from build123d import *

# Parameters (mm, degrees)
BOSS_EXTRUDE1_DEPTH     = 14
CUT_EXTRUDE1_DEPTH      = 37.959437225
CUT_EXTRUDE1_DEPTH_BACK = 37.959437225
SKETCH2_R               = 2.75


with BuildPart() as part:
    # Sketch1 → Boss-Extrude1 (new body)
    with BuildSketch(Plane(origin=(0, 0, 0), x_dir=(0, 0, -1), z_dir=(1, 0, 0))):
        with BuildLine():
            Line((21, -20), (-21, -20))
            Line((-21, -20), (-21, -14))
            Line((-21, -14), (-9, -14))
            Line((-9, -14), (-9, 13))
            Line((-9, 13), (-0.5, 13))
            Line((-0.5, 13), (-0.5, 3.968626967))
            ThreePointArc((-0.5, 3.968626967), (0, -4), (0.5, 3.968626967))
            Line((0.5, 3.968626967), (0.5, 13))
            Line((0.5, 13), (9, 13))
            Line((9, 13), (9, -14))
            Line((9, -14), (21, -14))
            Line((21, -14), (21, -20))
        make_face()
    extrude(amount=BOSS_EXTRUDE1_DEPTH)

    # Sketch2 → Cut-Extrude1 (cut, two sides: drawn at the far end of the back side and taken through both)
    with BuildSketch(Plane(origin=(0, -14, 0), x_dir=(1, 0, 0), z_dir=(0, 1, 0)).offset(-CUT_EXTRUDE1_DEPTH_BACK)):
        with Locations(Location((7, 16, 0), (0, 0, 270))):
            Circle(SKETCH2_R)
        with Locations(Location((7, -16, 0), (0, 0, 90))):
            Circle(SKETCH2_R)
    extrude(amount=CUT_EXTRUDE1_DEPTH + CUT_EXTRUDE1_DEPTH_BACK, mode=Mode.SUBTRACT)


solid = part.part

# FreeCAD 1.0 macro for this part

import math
import FreeCAD as App
import Part
import Sketcher

V = App.Vector
Q = App.Units.Quantity

doc = App.newDocument("Part")
params = doc.addObject("Spreadsheet::Sheet", "Params")
for row, (alias, value) in enumerate([
    ("sketch1_radius", "4 mm"),
    ("sketch1_width", "6 mm"),
    ("sketch1_width2", "27 mm"),
    ("sketch1_height", "42 mm"),
    ("sketch1_height2", "12 mm"),
    ("pad1_length", "14 mm"),
    ("sketch2_diameter", "5.5 mm"),
], start=1):
    params.set(f"A{row}", alias)
    params.set(f"B{row}", "=" + value)
    params.setAlias(f"B{row}", alias)

body = doc.addObject("PartDesign::Body", "Body")

# Sketch on YZ plane
sketch1 = body.newObject("Sketcher::SketchObject", "Sketch")
sketch1.AttachmentSupport = (doc.getObject("YZ_Plane"), [""])
sketch1.MapMode = "FlatFace"
sketch1.addGeometry([
    Part.LineSegment(V(-20, 21, 0), V(-20, -21, 0)),  # 0
    Part.LineSegment(V(-20, -21, 0), V(-14, -21, 0)),  # 1
    Part.LineSegment(V(-14, -21, 0), V(-14, -9, 0)),  # 2
    Part.LineSegment(V(-14, -9, 0), V(13, -9, 0)),  # 3
    Part.LineSegment(V(13, -9, 0), V(13, -0.5, 0)),  # 4
    Part.LineSegment(V(13, -0.5, 0), V(4, -0.5, 0)),  # 5
    Part.ArcOfCircle(Part.Circle(V(0, 0, 0), V(0, 0, 1), 4), math.radians(7), math.radians(353)),  # 6
    Part.LineSegment(V(4, 0.5, 0), V(13, 0.5, 0)),  # 7
    Part.LineSegment(V(13, 0.5, 0), V(13, 9, 0)),  # 8
    Part.LineSegment(V(13, 9, 0), V(-14, 9, 0)),  # 9
    Part.LineSegment(V(-14, 9, 0), V(-14, 21, 0)),  # 10
    Part.LineSegment(V(-14, 21, 0), V(-20, 21, 0)),  # 11
], False)
sketch1.addConstraint([
    Sketcher.Constraint("Coincident", 0, 2, 1, 1),
    Sketcher.Constraint("Coincident", 1, 2, 2, 1),
    Sketcher.Constraint("Coincident", 2, 2, 3, 1),
    Sketcher.Constraint("Coincident", 3, 2, 4, 1),
    Sketcher.Constraint("Coincident", 4, 2, 5, 1),
    Sketcher.Constraint("Coincident", 5, 2, 6, 2),
    Sketcher.Constraint("Coincident", 6, 1, 7, 1),
    Sketcher.Constraint("Coincident", 7, 2, 8, 1),
    Sketcher.Constraint("Coincident", 8, 2, 9, 1),
    Sketcher.Constraint("Coincident", 9, 2, 10, 1),
    Sketcher.Constraint("Coincident", 10, 2, 11, 1),
    Sketcher.Constraint("Coincident", 11, 2, 0, 1),
    Sketcher.Constraint("Vertical", 0),
    Sketcher.Constraint("Horizontal", 1),
    Sketcher.Constraint("Vertical", 2),
    Sketcher.Constraint("Horizontal", 3),
    Sketcher.Constraint("Vertical", 4),
    Sketcher.Constraint("Horizontal", 5),
    Sketcher.Constraint("Horizontal", 7),
    Sketcher.Constraint("Vertical", 8),
    Sketcher.Constraint("Horizontal", 9),
    Sketcher.Constraint("Vertical", 10),
    Sketcher.Constraint("Horizontal", 11),
    Sketcher.Constraint("Coincident", 6, 3, -1, 1),
    Sketcher.Constraint("Symmetric", 4, 2, 7, 2, -1),
    Sketcher.Constraint("Symmetric", 2, 2, 9, 2, -1),
    Sketcher.Constraint("Equal", 2, 10),
    Sketcher.Constraint("Radius", 6, Q("4 mm")),
    Sketcher.Constraint("DistanceX", 1, 1, 1, 2, Q("6 mm")),
    Sketcher.Constraint("DistanceX", 3, 1, 3, 2, Q("27 mm")),
    Sketcher.Constraint("DistanceY", 0, 2, 0, 1, Q("42 mm")),
    Sketcher.Constraint("DistanceY", 2, 1, 2, 2, Q("12 mm")),
    Sketcher.Constraint("DistanceY", 4, 1, 4, 2, Q("8.5 mm")),
    Sketcher.Constraint("DistanceX", 0, 2, -1, 1, Q("20 mm")),
])
sketch1.setExpression("Constraints[27]", "Params.sketch1_radius")
sketch1.setExpression("Constraints[28]", "Params.sketch1_width")
sketch1.setExpression("Constraints[29]", "Params.sketch1_width2")
sketch1.setExpression("Constraints[30]", "Params.sketch1_height")
sketch1.setExpression("Constraints[31]", "Params.sketch1_height2")
pad1 = body.newObject("PartDesign::Pad", "Pad")
pad1.Profile = sketch1
pad1.setExpression("Length", "Params.pad1_length")

# Sketch on XZ plane
sketch2 = body.newObject("Sketcher::SketchObject", "Sketch001")
sketch2.AttachmentSupport = (doc.getObject("XZ_Plane"), [""])
sketch2.MapMode = "FlatFace"
sketch2.AttachmentOffset = App.Placement(V(0, 0, 14), App.Rotation())
sketch2.addGeometry([
    Part.Circle(V(7, -16, 0), V(0, 0, 1), 2.8),
    Part.Circle(V(7, 16, 0), V(0, 0, 1), 2.8),
], False)
sketch2.addConstraint([
    Sketcher.Constraint("Equal", 0, 1),
    Sketcher.Constraint("Symmetric", 0, 3, 1, 3, -1),
    Sketcher.Constraint("Diameter", 0, Q("5.5 mm")),
    Sketcher.Constraint("DistanceX", -1, 1, 0, 3, Q("7 mm")),
    Sketcher.Constraint("DistanceY", 0, 3, -1, 1, Q("16 mm")),
])
sketch2.setExpression("Constraints[2]", "Params.sketch2_diameter")
pocket1 = body.newObject("PartDesign::Pocket", "Pocket")
pocket1.Profile = sketch2
pocket1.Type = "ThroughAll"
pocket1.Midplane = True

doc.recompute()
